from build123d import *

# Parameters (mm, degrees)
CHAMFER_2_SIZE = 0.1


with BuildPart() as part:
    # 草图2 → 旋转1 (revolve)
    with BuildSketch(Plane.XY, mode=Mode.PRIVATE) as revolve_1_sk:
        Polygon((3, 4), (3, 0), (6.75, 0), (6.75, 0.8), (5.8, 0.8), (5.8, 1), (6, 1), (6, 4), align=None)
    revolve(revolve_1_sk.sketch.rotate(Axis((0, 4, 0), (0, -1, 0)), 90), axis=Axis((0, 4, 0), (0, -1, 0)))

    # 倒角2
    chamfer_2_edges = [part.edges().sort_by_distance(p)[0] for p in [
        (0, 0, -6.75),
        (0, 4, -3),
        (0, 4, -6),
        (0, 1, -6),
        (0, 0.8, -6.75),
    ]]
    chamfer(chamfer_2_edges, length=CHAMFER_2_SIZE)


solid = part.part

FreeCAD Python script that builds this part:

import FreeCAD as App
import Part
import Sketcher
from FreeCAD import Vector
Q = App.Units.Quantity


def edges_at(feature, points):
    """Names of the edges that pass closest to the given points."""
    edges = feature.Shape.Edges
    near = lambda p: min(range(len(edges)), key=lambda i: edges[i].distToShape(Part.Vertex(*p))[0])
    return sorted({f"Edge{near(p) + 1}" for p in points})

doc = App.newDocument("Part")
body = doc.addObject("PartDesign::Body", "Body")

# Sketch on XY plane
sketch1 = doc.addObject("Sketcher::SketchObject", "Sketch")
body.addObject(sketch1)
sketch1.AttachmentSupport = (doc.XY_Plane, [""])
sketch1.MapMode = "FlatFace"
sketch1.addGeometry([
    Part.LineSegment(Vector(3, 4, 0), Vector(3, 0, 0)),  # 0
    Part.LineSegment(Vector(3, 0, 0), Vector(6.75, 0, 0)),  # 1
    Part.LineSegment(Vector(6.75, 0, 0), Vector(6.75, 0.8, 0)),  # 2
    Part.LineSegment(Vector(6.75, 0.8, 0), Vector(5.8, 0.8, 0)),  # 3
    Part.LineSegment(Vector(5.8, 0.8, 0), Vector(5.8, 1, 0)),  # 4
    Part.LineSegment(Vector(5.8, 1, 0), Vector(6, 1, 0)),  # 5
    Part.LineSegment(Vector(6, 1, 0), Vector(6, 4, 0)),  # 6
    Part.LineSegment(Vector(6, 4, 0), Vector(3, 4, 0)),  # 7
], False)
sketch1.addConstraint([
    Sketcher.Constraint("Coincident", 0, 2, 1, 1),
    Sketcher.Constraint("Coincident", 1, 2, 2, 1),
    Sketcher.Constraint("Coincident", 2, 2, 3, 1),
    Sketcher.Constraint("Coincident", 3, 2, 4, 1),
    Sketcher.Constraint("Coincident", 4, 2, 5, 1),
    Sketcher.Constraint("Coincident", 5, 2, 6, 1),
    Sketcher.Constraint("Coincident", 6, 2, 7, 1),
    Sketcher.Constraint("Coincident", 7, 2, 0, 1),
    Sketcher.Constraint("Vertical", 0),
    Sketcher.Constraint("Horizontal", 1),
    Sketcher.Constraint("Vertical", 2),
    Sketcher.Constraint("Horizontal", 3),
    Sketcher.Constraint("Vertical", 4),
    Sketcher.Constraint("Horizontal", 5),
    Sketcher.Constraint("Vertical", 6),
    Sketcher.Constraint("Horizontal", 7),
    Sketcher.Constraint("PointOnObject", 0, 2, -1),
    Sketcher.Constraint("Equal", 5, 4),
    Sketcher.Constraint("Equal", 7, 6),
    Sketcher.Constraint("DistanceX", 7, 2, 7, 1, Q("3 mm")),
    Sketcher.Constraint("DistanceY", 0, 2, 0, 1, Q("4 mm")),
    Sketcher.Constraint("DistanceX", 5, 1, 5, 2, Q("0.2 mm")),
    Sketcher.Constraint("DistanceX", -1, 1, 0, 2, Q("3 mm")),
    Sketcher.Constraint("DistanceX", 1, 1, 1, 2, Q("3.75 mm")),
])
revolution = doc.addObject("PartDesign::Revolution", "Revolution")
body.addObject(revolution)
revolution.Profile = sketch1
revolution.ReferenceAxis = (sketch1, ["V_Axis"])
revolution.Angle = 360
doc.recompute()

chamfer = doc.addObject("PartDesign::Chamfer", "Chamfer")
body.addObject(chamfer)
chamfer.Base = (revolution, edges_at(revolution, [
    (0, 0, -6.75),
    (0, 4, -3),
    (0, 4, -6),
    (0, 1, -6),
    (0, 0.8, -6.75),
]))
chamfer.Size = 0.1

doc.recompute()
